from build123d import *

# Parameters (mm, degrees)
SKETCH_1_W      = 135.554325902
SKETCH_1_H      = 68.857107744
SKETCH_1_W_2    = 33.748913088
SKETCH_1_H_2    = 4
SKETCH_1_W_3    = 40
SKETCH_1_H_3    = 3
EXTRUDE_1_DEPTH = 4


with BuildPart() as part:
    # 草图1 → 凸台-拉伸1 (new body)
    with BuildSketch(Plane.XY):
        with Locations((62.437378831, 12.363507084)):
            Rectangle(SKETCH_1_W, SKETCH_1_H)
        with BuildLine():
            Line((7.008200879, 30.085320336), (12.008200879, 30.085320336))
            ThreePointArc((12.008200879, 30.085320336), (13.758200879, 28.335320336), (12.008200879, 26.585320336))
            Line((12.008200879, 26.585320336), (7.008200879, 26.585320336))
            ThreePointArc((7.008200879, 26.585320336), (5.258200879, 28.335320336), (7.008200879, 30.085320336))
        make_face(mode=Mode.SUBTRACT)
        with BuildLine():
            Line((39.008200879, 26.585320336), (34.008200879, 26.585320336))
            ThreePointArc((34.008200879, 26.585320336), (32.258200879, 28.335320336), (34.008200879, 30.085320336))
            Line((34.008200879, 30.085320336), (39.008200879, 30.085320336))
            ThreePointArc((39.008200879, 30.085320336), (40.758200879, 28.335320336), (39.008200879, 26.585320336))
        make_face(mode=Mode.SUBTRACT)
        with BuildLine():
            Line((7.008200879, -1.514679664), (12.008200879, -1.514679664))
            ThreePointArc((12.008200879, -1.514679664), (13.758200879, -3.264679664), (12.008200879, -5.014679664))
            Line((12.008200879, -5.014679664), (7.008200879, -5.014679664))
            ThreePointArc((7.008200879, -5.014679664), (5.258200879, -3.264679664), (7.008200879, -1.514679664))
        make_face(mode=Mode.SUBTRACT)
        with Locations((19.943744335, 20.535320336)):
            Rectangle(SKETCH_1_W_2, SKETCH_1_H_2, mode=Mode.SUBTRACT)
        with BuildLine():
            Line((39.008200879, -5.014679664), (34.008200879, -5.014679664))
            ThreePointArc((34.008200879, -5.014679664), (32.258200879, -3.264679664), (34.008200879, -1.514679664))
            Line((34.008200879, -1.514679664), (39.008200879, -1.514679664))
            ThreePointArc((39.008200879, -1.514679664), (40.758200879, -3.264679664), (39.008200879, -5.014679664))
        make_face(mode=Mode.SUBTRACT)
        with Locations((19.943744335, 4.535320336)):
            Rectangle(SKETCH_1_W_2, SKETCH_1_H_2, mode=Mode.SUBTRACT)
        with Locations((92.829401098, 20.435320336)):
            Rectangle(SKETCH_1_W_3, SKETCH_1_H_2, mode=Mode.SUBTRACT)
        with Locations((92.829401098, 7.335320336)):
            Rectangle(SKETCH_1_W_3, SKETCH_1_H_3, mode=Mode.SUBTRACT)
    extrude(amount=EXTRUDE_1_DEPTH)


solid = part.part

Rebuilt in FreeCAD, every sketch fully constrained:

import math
import FreeCAD as App
import Part
import Sketcher

doc = App.newDocument("Part")
params = doc.addObject("Spreadsheet::Sheet", "Params")
for row, (alias, value) in enumerate([
    ("sketch1_width", "5 mm"),
    ("sketch1_width2", "40 mm"),
    ("sketch1_height", "4 mm"),
    ("sketch1_height2", "3 mm"),
    ("sketch1_radius", "1.75 mm"),
    ("pad1_length", "4 mm"),
], start=1):
    params.set(f"A{row}", alias)
    params.set(f"B{row}", "=" + value)
    params.setAlias(f"B{row}", alias)

body = doc.addObject("PartDesign::Body", "Body")

# Sketch on XY plane
sketch1 = body.newObject("Sketcher::SketchObject", "Sketch")
sketch1.AttachmentSupport = (doc.getObject("XY_Plane"), [""])
sketch1.MapMode = "FlatFace"
sketch1.addGeometry(Part.LineSegment(App.Vector(-5.3, 46.8, 0), App.Vector(-5.3, -22.1, 0)), False)
sketch1.addGeometry(Part.LineSegment(App.Vector(-5.3, -22.1, 0), App.Vector(130.2, -22.1, 0)), False)
sketch1.addGeometry(Part.LineSegment(App.Vector(130.2, -22.1, 0), App.Vector(130.2, 46.8, 0)), False)
sketch1.addGeometry(Part.LineSegment(App.Vector(130.2, 46.8, 0), App.Vector(-5.3, 46.8, 0)), False)
sketch1.addGeometry(Part.ArcOfCircle(Part.Circle(App.Vector(7, -3.3, 0), App.Vector(0, 0, 1), 1.8), math.radians(90), math.radians(270)), False)
sketch1.addGeometry(Part.LineSegment(App.Vector(7, -1.5, 0), App.Vector(12, -1.5, 0)), False)
sketch1.addGeometry(Part.ArcOfCircle(Part.Circle(App.Vector(12, -3.3, 0), App.Vector(0, 0, 1), 1.8), math.radians(-90), math.radians(90)), False)
sketch1.addGeometry(Part.LineSegment(App.Vector(12, -5, 0), App.Vector(7, -5, 0)), False)
sketch1.addGeometry(Part.ArcOfCircle(Part.Circle(App.Vector(39, -3.3, 0), App.Vector(0, 0, 1), 1.8), math.radians(-90), math.radians(90)), False)
sketch1.addGeometry(Part.LineSegment(App.Vector(39, -5, 0), App.Vector(34, -5, 0)), False)
sketch1.addGeometry(Part.ArcOfCircle(Part.Circle(App.Vector(34, -3.3, 0), App.Vector(0, 0, 1), 1.8), math.radians(90), math.radians(270)), False)
sketch1.addGeometry(Part.LineSegment(App.Vector(34, -1.5, 0), App.Vector(39, -1.5, 0)), False)
sketch1.addGeometry(Part.LineSegment(App.Vector(36.8, 2.5, 0), App.Vector(3.1, 2.5, 0)), False)
sketch1.addGeometry(Part.LineSegment(App.Vector(3.1, 2.5, 0), App.Vector(3.1, 6.5, 0)), False)
sketch1.addGeometry(Part.LineSegment(App.Vector(3.1, 6.5, 0), App.Vector(36.8, 6.5, 0)), False)
sketch1.addGeometry(Part.LineSegment(App.Vector(36.8, 6.5, 0), App.Vector(36.8, 2.5, 0)), False)
sketch1.addGeometry(Part.LineSegment(App.Vector(112.8, 5.8, 0), App.Vector(72.8, 5.8, 0)), False)
sketch1.addGeometry(Part.LineSegment(App.Vector(72.8, 5.8, 0), App.Vector(72.8, 8.8, 0)), False)
sketch1.addGeometry(Part.LineSegment(App.Vector(72.8, 8.8, 0), App.Vector(112.8, 8.8, 0)), False)
sketch1.addGeometry(Part.LineSegment(App.Vector(112.8, 8.8, 0), App.Vector(112.8, 5.8, 0)), False)
sketch1.addGeometry(Part.LineSegment(App.Vector(36.8, 18.5, 0), App.Vector(3.1, 18.5, 0)), False)
sketch1.addGeometry(Part.LineSegment(App.Vector(3.1, 18.5, 0), App.Vector(3.1, 22.5, 0)), False)
sketch1.addGeometry(Part.LineSegment(App.Vector(3.1, 22.5, 0), App.Vector(36.8, 22.5, 0)), False)
sketch1.addGeometry(Part.LineSegment(App.Vector(36.8, 22.5, 0), App.Vector(36.8, 18.5, 0)), False)
sketch1.addGeometry(Part.ArcOfCircle(Part.Circle(App.Vector(7, 28.3, 0), App.Vector(0, 0, 1), 1.8), math.radians(90), math.radians(270)), False)
sketch1.addGeometry(Part.LineSegment(App.Vector(7, 30.1, 0), App.Vector(12, 30.1, 0)), False)
sketch1.addGeometry(Part.ArcOfCircle(Part.Circle(App.Vector(12, 28.3, 0), App.Vector(0, 0, 1), 1.8), math.radians(-90), math.radians(90)), False)
sketch1.addGeometry(Part.LineSegment(App.Vector(12, 26.6, 0), App.Vector(7, 26.6, 0)), False)
sketch1.addGeometry(Part.ArcOfCircle(Part.Circle(App.Vector(39, 28.3, 0), App.Vector(0, 0, 1), 1.8), math.radians(-90), math.radians(90)), False)
sketch1.addGeometry(Part.LineSegment(App.Vector(39, 26.6, 0), App.Vector(34, 26.6, 0)), False)
sketch1.addGeometry(Part.ArcOfCircle(Part.Circle(App.Vector(34, 28.3, 0), App.Vector(0, 0, 1), 1.8), math.radians(90), math.radians(270)), False)
sketch1.addGeometry(Part.LineSegment(App.Vector(34, 30.1, 0), App.Vector(39, 30.1, 0)), False)
sketch1.addGeometry(Part.LineSegment(App.Vector(112.8, 18.4, 0), App.Vector(72.8, 18.4, 0)), False)
sketch1.addGeometry(Part.LineSegment(App.Vector(72.8, 18.4, 0), App.Vector(72.8, 22.4, 0)), False)
sketch1.addGeometry(Part.LineSegment(App.Vector(72.8, 22.4, 0), App.Vector(112.8, 22.4, 0)), False)
sketch1.addGeometry(Part.LineSegment(App.Vector(112.8, 22.4, 0), App.Vector(112.8, 18.4, 0)), False)
sketch1.addConstraint(Sketcher.Constraint("Coincident", 0, 2, 1, 1))
sketch1.addConstraint(Sketcher.Constraint("Coincident", 1, 2, 2, 1))
sketch1.addConstraint(Sketcher.Constraint("Coincident", 2, 2, 3, 1))
sketch1.addConstraint(Sketcher.Constraint("Coincident", 3, 2, 0, 1))
sketch1.addConstraint(Sketcher.Constraint("Tangent", 4, 1, 5, 1))
sketch1.addConstraint(Sketcher.Constraint("Tangent", 5, 2, 6, 2))
sketch1.addConstraint(Sketcher.Constraint("Tangent", 6, 1, 7, 1))
sketch1.addConstraint(Sketcher.Constraint("Tangent", 7, 2, 4, 2))
sketch1.addConstraint(Sketcher.Constraint("Tangent", 8, 1, 9, 1))
sketch1.addConstraint(Sketcher.Constraint("Tangent", 9, 2, 10, 2))
sketch1.addConstraint(Sketcher.Constraint("Tangent", 10, 1, 11, 1))
sketch1.addConstraint(Sketcher.Constraint("Tangent", 11, 2, 8, 2))
sketch1.addConstraint(Sketcher.Constraint("Coincident", 12, 2, 13, 1))
sketch1.addConstraint(Sketcher.Constraint("Coincident", 13, 2, 14, 1))
sketch1.addConstraint(Sketcher.Constraint("Coincident", 14, 2, 15, 1))
sketch1.addConstraint(Sketcher.Constraint("Coincident", 15, 2, 12, 1))
sketch1.addConstraint(Sketcher.Constraint("Coincident", 16, 2, 17, 1))
sketch1.addConstraint(Sketcher.Constraint("Coincident", 17, 2, 18, 1))
sketch1.addConstraint(Sketcher.Constraint("Coincident", 18, 2, 19, 1))
sketch1.addConstraint(Sketcher.Constraint("Coincident", 19, 2, 16, 1))
sketch1.addConstraint(Sketcher.Constraint("Coincident", 20, 2, 21, 1))
sketch1.addConstraint(Sketcher.Constraint("Coincident", 21, 2, 22, 1))
sketch1.addConstraint(Sketcher.Constraint("Coincident", 22, 2, 23, 1))
sketch1.addConstraint(Sketcher.Constraint("Coincident", 23, 2, 20, 1))
sketch1.addConstraint(Sketcher.Constraint("Tangent", 24, 1, 25, 1))
sketch1.addConstraint(Sketcher.Constraint("Tangent", 25, 2, 26, 2))
sketch1.addConstraint(Sketcher.Constraint("Tangent", 26, 1, 27, 1))
sketch1.addConstraint(Sketcher.Constraint("Tangent", 27, 2, 24, 2))
sketch1.addConstraint(Sketcher.Constraint("Tangent", 28, 1, 29, 1))
sketch1.addConstraint(Sketcher.Constraint("Tangent", 29, 2, 30, 2))
sketch1.addConstraint(Sketcher.Constraint("Tangent", 30, 1, 31, 1))
sketch1.addConstraint(Sketcher.Constraint("Tangent", 31, 2, 28, 2))
sketch1.addConstraint(Sketcher.Constraint("Coincident", 32, 2, 33, 1))
sketch1.addConstraint(Sketcher.Constraint("Coincident", 33, 2, 34, 1))
sketch1.addConstraint(Sketcher.Constraint("Coincident", 34, 2, 35, 1))
sketch1.addConstraint(Sketcher.Constraint("Coincident", 35, 2, 32, 1))
sketch1.addConstraint(Sketcher.Constraint("Vertical", 0))
sketch1.addConstraint(Sketcher.Constraint("Horizontal", 1))
sketch1.addConstraint(Sketcher.Constraint("Vertical", 2))
sketch1.addConstraint(Sketcher.Constraint("Horizontal", 3))
sketch1.addConstraint(Sketcher.Constraint("Horizontal", 5))
sketch1.addConstraint(Sketcher.Constraint("Horizontal", 7))
sketch1.addConstraint(Sketcher.Constraint("Horizontal", 9))
sketch1.addConstraint(Sketcher.Constraint("Horizontal", 11))
sketch1.addConstraint(Sketcher.Constraint("Horizontal", 12))
sketch1.addConstraint(Sketcher.Constraint("Vertical", 13))
sketch1.addConstraint(Sketcher.Constraint("Horizontal", 14))
sketch1.addConstraint(Sketcher.Constraint("Vertical", 15))
sketch1.addConstraint(Sketcher.Constraint("Horizontal", 16))
sketch1.addConstraint(Sketcher.Constraint("Vertical", 17))
sketch1.addConstraint(Sketcher.Constraint("Horizontal", 18))
sketch1.addConstraint(Sketcher.Constraint("Vertical", 19))
sketch1.addConstraint(Sketcher.Constraint("Horizontal", 20))
sketch1.addConstraint(Sketcher.Constraint("Vertical", 21))
sketch1.addConstraint(Sketcher.Constraint("Horizontal", 22))
sketch1.addConstraint(Sketcher.Constraint("Vertical", 23))
sketch1.addConstraint(Sketcher.Constraint("Horizontal", 25))
sketch1.addConstraint(Sketcher.Constraint("Horizontal", 27))
sketch1.addConstraint(Sketcher.Constraint("Horizontal", 29))
sketch1.addConstraint(Sketcher.Constraint("Horizontal", 31))
sketch1.addConstraint(Sketcher.Constraint("Horizontal", 32))
sketch1.addConstraint(Sketcher.Constraint("Vertical", 33))
sketch1.addConstraint(Sketcher.Constraint("Horizontal", 34))
sketch1.addConstraint(Sketcher.Constraint("Vertical", 35))
sketch1.addConstraint(Sketcher.Constraint("Equal", 6, 8))
sketch1.addConstraint(Sketcher.Constraint("Equal", 10, 24))
sketch1.addConstraint(Sketcher.Constraint("Equal", 26, 28))
sketch1.addConstraint(Sketcher.Constraint("Horizontal", 6, 3, 8, 3))
sketch1.addConstraint(Sketcher.Constraint("Horizontal", 26, 3, 28, 3))
sketch1.addConstraint(Sketcher.Constraint("Vertical", 4, 3, 24, 3))
sketch1.addConstraint(Sketcher.Constraint("Vertical", 6, 3, 26, 3))
sketch1.addConstraint(Sketcher.Constraint("Vertical", 8, 3, 28, 3))
sketch1.addConstraint(Sketcher.Constraint("Vertical", 10, 3, 30, 3))
sketch1.addConstraint(Sketcher.Constraint("Vertical", 13, 2, 20, 2))
sketch1.addConstraint(Sketcher.Constraint("Vertical", 15, 2, 22, 2))
sketch1.addConstraint(Sketcher.Constraint("Vertical", 17, 2, 32, 2))
sketch1.addConstraint(Sketcher.Constraint("Vertical", 19, 2, 34, 2))
sketch1.addConstraint(Sketcher.Constraint("Equal", 7, 9))
sketch1.addConstraint(Sketcher.Constraint("Equal", 15, 21))
sketch1.addConstraint(Sketcher.Constraint("Equal", 23, 33))
sketch1.addConstraint(Sketcher.Constraint("DistanceX", 5, 1, 5, 2, 5.0))
sketch1.addConstraint(Sketcher.Constraint("DistanceX", 16, 2, 16, 1, 40.0))
sketch1.addConstraint(Sketcher.Constraint("DistanceY", 13, 1, 13, 2, 4.0))
sketch1.addConstraint(Sketcher.Constraint("DistanceY", 17, 1, 17, 2, 3.0))
sketch1.addConstraint(Sketcher.Constraint("Radius", 4, 1.75))
sketch1.addConstraint(Sketcher.Constraint("DistanceX", 6, 3, 8, 3, 27.0))
sketch1.addConstraint(Sketcher.Constraint("DistanceY", 13, 2, 20, 2, 12.0))
sketch1.addConstraint(Sketcher.Constraint("DistanceY", 4, 3, 24, 3, 31.6))
sketch1.addConstraint(Sketcher.Constraint("DistanceY", 4, 3, 12, 2, 5.8))
sketch1.addConstraint(Sketcher.Constraint("DistanceY", 8, 3, 16, 2, 9.1))
sketch1.addConstraint(Sketcher.Constraint("DistanceY", 17, 2, 32, 2, 9.6))
sketch1.addConstraint(Sketcher.Constraint("DistanceX", 14, 2, 11, 2, 2.19))
sketch1.addConstraint(Sketcher.Constraint("DistanceX", -1, 1, 4, 3, 7.008201))
sketch1.addConstraint(Sketcher.Constraint("DistanceX", -1, 1, 16, 2, 72.829401))
sketch1.addConstraint(Sketcher.Constraint("DistanceX", 1, 1, 1, 2, 135.554326))
sketch1.addConstraint(Sketcher.Constraint("DistanceX", 12, 2, 12, 1, 33.748913))
sketch1.addConstraint(Sketcher.Constraint("DistanceY", 0, 2, 0, 1, 68.857108))
sketch1.addConstraint(Sketcher.Constraint("DistanceY", 4, 3, -1, 1, 3.26468))
sketch1.addConstraint(Sketcher.Constraint("DistanceX", -1, 1, 1, 2, 130.214542))
sketch1.addConstraint(Sketcher.Constraint("DistanceY", -1, 1, 2, 2, 46.792061))
sketch1.setExpression("Constraints[80]", "Params.sketch1_width")
sketch1.setExpression("Constraints[81]", "Params.sketch1_width2")
sketch1.setExpression("Constraints[82]", "Params.sketch1_height")
sketch1.setExpression("Constraints[83]", "Params.sketch1_height2")
sketch1.setExpression("Constraints[84]", "Params.sketch1_radius")
pad1 = body.newObject("PartDesign::Pad", "Pad")
pad1.Profile = sketch1
pad1.setExpression("Length", "Params.pad1_length")

doc.recompute()
